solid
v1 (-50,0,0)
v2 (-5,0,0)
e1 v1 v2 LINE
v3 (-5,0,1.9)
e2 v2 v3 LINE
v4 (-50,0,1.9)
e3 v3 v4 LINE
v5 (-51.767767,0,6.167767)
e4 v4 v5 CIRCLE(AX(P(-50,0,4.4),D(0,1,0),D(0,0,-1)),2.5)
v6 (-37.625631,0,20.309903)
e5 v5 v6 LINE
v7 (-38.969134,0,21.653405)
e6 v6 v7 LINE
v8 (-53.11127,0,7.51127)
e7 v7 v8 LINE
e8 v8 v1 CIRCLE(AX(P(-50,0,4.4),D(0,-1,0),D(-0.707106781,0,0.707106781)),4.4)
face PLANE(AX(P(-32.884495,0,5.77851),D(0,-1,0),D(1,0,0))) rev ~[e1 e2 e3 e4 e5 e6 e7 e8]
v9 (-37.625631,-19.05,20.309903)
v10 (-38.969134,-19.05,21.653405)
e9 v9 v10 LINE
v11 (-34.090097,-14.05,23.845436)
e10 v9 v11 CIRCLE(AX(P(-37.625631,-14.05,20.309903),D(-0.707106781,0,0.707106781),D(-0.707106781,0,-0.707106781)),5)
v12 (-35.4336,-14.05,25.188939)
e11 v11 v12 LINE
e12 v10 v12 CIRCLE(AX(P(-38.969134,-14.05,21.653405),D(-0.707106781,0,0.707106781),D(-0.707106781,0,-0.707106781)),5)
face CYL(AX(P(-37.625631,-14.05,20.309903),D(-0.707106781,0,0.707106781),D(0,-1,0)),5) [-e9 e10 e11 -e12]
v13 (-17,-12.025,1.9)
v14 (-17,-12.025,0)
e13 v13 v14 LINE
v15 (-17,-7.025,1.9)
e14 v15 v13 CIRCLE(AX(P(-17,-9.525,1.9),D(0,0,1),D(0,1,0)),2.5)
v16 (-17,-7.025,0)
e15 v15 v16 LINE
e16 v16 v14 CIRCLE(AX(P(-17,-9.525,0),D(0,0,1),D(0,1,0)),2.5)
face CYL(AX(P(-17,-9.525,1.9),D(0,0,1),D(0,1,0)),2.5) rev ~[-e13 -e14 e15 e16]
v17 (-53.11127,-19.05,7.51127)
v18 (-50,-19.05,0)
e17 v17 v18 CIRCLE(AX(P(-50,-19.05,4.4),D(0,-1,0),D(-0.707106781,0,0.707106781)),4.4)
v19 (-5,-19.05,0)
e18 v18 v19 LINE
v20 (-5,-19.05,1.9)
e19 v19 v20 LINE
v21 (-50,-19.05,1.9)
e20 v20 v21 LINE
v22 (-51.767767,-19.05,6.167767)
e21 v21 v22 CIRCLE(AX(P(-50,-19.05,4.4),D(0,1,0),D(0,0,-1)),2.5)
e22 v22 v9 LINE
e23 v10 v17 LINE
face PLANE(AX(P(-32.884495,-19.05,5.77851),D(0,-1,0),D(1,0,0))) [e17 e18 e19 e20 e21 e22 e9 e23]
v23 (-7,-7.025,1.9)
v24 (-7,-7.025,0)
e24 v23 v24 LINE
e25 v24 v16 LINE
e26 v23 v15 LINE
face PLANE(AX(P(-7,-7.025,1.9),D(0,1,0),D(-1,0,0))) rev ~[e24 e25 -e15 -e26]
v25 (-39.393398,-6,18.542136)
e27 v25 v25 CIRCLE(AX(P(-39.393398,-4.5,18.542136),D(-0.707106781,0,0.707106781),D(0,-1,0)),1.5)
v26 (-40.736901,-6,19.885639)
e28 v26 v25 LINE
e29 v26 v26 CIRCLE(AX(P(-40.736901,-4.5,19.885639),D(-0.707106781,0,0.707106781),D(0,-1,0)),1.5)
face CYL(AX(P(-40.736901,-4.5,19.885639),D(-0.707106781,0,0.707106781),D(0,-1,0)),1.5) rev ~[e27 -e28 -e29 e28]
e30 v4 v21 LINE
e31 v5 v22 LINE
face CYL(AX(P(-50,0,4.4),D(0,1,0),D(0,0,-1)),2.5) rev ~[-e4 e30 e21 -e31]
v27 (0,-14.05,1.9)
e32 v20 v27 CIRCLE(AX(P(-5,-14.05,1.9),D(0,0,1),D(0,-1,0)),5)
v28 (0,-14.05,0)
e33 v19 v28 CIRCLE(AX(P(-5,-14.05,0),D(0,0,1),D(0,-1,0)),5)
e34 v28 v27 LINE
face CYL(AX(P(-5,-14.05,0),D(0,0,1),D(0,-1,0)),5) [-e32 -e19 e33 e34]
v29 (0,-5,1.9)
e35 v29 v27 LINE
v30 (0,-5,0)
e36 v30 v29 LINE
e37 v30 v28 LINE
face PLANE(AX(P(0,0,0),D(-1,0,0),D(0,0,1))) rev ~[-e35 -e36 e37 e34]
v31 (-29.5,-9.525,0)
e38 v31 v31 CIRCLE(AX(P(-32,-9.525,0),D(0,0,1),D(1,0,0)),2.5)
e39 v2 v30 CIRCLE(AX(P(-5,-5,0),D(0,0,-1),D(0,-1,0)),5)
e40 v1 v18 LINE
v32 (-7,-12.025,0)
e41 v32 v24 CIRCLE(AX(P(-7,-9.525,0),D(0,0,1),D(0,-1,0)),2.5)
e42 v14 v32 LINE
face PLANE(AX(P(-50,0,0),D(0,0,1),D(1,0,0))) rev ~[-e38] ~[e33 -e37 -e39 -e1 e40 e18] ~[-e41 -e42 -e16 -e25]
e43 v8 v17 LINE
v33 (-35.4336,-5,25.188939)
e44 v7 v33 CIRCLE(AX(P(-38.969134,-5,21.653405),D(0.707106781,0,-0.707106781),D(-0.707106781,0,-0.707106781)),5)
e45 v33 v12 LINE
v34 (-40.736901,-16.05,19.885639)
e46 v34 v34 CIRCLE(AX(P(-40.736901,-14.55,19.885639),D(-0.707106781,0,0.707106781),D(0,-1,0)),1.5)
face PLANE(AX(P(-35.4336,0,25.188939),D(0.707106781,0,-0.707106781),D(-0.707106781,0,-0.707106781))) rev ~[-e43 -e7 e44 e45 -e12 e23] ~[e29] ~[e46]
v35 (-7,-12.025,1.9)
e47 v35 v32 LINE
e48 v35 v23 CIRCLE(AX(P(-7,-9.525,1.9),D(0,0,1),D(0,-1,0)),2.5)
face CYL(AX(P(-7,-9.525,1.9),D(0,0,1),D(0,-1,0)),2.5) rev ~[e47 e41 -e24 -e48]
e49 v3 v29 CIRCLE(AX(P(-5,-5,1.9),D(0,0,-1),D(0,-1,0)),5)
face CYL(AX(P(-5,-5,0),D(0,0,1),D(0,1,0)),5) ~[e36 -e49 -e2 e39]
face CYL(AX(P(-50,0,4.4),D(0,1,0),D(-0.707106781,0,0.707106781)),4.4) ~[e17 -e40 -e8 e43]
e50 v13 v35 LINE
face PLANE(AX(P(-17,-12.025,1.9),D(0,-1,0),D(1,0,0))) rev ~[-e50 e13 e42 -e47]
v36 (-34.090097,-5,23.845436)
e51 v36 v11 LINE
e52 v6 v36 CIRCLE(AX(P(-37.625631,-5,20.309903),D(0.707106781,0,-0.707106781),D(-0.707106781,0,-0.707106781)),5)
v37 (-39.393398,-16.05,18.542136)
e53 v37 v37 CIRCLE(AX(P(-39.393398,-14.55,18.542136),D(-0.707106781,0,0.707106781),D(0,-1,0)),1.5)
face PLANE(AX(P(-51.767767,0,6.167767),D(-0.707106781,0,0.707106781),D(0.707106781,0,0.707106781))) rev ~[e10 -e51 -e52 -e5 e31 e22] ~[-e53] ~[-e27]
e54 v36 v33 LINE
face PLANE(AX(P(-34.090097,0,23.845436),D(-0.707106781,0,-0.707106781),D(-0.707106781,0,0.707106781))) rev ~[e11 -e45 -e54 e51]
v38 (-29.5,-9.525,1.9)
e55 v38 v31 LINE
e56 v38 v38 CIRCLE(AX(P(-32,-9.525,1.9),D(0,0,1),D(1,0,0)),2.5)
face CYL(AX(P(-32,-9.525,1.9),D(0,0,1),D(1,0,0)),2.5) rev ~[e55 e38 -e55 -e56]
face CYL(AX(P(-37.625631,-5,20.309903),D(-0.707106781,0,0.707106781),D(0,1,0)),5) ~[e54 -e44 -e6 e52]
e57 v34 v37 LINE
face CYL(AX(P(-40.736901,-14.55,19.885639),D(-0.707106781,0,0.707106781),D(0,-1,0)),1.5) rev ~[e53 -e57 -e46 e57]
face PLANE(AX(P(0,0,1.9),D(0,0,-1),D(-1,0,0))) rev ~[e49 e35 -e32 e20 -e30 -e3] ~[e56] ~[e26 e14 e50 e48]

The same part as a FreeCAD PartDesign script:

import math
import FreeCAD as App
import Part
import Sketcher
from FreeCAD import Vector
Q = App.Units.Quantity


def edges_at(feature, points):
    """Names of the edges that pass closest to the given points."""
    edges = feature.Shape.Edges
    near = lambda p: min(range(len(edges)), key=lambda i: edges[i].distToShape(Part.Vertex(*p))[0])
    return sorted({f"Edge{near(p) + 1}" for p in points})

doc = App.newDocument("Part")
body = doc.addObject("PartDesign::Body", "Body")

# Sketch on XZ plane
sketch1 = body.newObject("Sketcher::SketchObject", "Sketch")
sketch1.AttachmentSupport = (doc.getObject("XZ_Plane"), [""])
sketch1.MapMode = "FlatFace"
sketch1.addGeometry([
    Part.LineSegment(Vector(-50, 0, 0), Vector(0, 0, 0)),  # 0
    Part.LineSegment(Vector(0, 0, 0), Vector(0, 1.9, 0)),  # 1
    Part.LineSegment(Vector(0, 1.9, 0), Vector(-50, 1.9, 0)),  # 2
    Part.ArcOfCircle(Part.Circle(Vector(-50, 4.4, 0), Vector(0, 0, 1), 2.5), math.radians(135), math.radians(270)),  # 3
    Part.LineSegment(Vector(-51.767767, 6.167767, 0), Vector(-34.090097, 23.845436, 0)),  # 4
    Part.LineSegment(Vector(-34.090097, 23.845436, 0), Vector(-35.4336, 25.188939, 0)),  # 5
    Part.LineSegment(Vector(-35.4336, 25.188939, 0), Vector(-53.11127, 7.51127, 0)),  # 6
    Part.ArcOfCircle(Part.Circle(Vector(-50, 4.4, 0), Vector(0, 0, 1), 4.4), math.radians(135), math.radians(270)),  # 7
], False)
sketch1.addConstraint([
    Sketcher.Constraint("Coincident", 0, 2, 1, 1),
    Sketcher.Constraint("Coincident", 1, 2, 2, 1),
    Sketcher.Constraint("Tangent", 2, 2, 3, 2),
    Sketcher.Constraint("Tangent", 3, 1, 4, 1),
    Sketcher.Constraint("Coincident", 4, 2, 5, 1),
    Sketcher.Constraint("Coincident", 5, 2, 6, 1),
    Sketcher.Constraint("Tangent", 6, 2, 7, 1),
    Sketcher.Constraint("Tangent", 7, 2, 0, 1),
    Sketcher.Constraint("Horizontal", 0),
    Sketcher.Constraint("Vertical", 1),
    Sketcher.Constraint("Horizontal", 2),
    Sketcher.Constraint("Coincident", 0, 2, -1, 1),
    Sketcher.Constraint("Coincident", 7, 3, 3, 3),
    Sketcher.Constraint("Perpendicular", 4, 5),
    Sketcher.Constraint("Perpendicular", 5, 6),
    Sketcher.Constraint("Radius", 3, 2.5),
    Sketcher.Constraint("Radius", 7, 4.4),
    Sketcher.Constraint("DistanceX", 0, 1, 0, 2, 50.0),
    Sketcher.Constraint("Angle", 4, Q("45 deg")),
    Sketcher.Constraint("Distance", 4, 25.0),
])
pad1 = body.newObject("PartDesign::Pad", "Pad")
pad1.Profile = sketch1
pad1.Length = 19.05

# Sketch on XY plane
sketch2 = body.newObject("Sketcher::SketchObject", "Sketch001")
sketch2.AttachmentSupport = (doc.getObject("XY_Plane"), [""])
sketch2.MapMode = "FlatFace"
sketch2.AttachmentOffset = App.Placement(Vector(0, 0, 1.9), App.Rotation())
sketch2.addGeometry([
    Part.Circle(Vector(-32, -9.525, 0), Vector(0, 0, 1), 2.5),  # 0
    Part.LineSegment(Vector(-17, -12.025, 0), Vector(-7, -12.025, 0)),  # 1
    Part.ArcOfCircle(Part.Circle(Vector(-7, -9.525, 0), Vector(0, 0, 1), 2.5), math.radians(-90), math.radians(90)),  # 2
    Part.LineSegment(Vector(-7, -7.025, 0), Vector(-17, -7.025, 0)),  # 3
    Part.ArcOfCircle(Part.Circle(Vector(-17, -9.525, 0), Vector(0, 0, 1), 2.5), math.radians(90), math.radians(270)),  # 4
], False)
sketch2.addConstraint([
    Sketcher.Constraint("Tangent", 1, 2, 2, 1),
    Sketcher.Constraint("Tangent", 2, 2, 3, 1),
    Sketcher.Constraint("Tangent", 3, 2, 4, 1),
    Sketcher.Constraint("Tangent", 4, 2, 1, 1),
    Sketcher.Constraint("Horizontal", 1),
    Sketcher.Constraint("Horizontal", 3),
    Sketcher.Constraint("Equal", 0, 2),
    Sketcher.Constraint("Horizontal", 0, 3, 2, 3),
    Sketcher.Constraint("Diameter", 0, 5.0),
    Sketcher.Constraint("DistanceX", 1, 1, 1, 2, 10.0),
    Sketcher.Constraint("DistanceX", 0, 3, -1, 1, 32.0),
    Sketcher.Constraint("DistanceX", 2, 3, -1, 1, 7.0),
    Sketcher.Constraint("DistanceY", 0, 3, -1, 1, 9.525),
])
pocket1 = body.newObject("PartDesign::Pocket", "Pocket")
pocket1.Profile = sketch2
pocket1.Length = 1.9

# Sketch on an angled plane
sketch3 = body.newObject("Sketcher::SketchObject", "Sketch002")
sketch3.Placement = App.Placement(Vector(-30.31127, 0, 30.31127), App.Rotation(Vector(0, -1, 0), Vector(0.707106781, 0, 0.707106781), Vector(-0.707106781, 0, 0.707106781), "ZXY"))
sketch3.addGeometry([
    Part.Circle(Vector(14.55, -14.744069, 0), Vector(0, 0, 1), 1.5),
    Part.Circle(Vector(4.5, -14.744069, 0), Vector(0, 0, 1), 1.5),
], False)
sketch3.addConstraint([
    Sketcher.Constraint("Equal", 0, 1),
    Sketcher.Constraint("Horizontal", 0, 3, 1, 3),
    Sketcher.Constraint("Diameter", 0, 3.0),
    Sketcher.Constraint("DistanceX", -1, 1, 1, 3, 4.5),
    Sketcher.Constraint("DistanceX", -1, 1, 0, 3, 14.55),
    Sketcher.Constraint("DistanceY", 0, 3, -1, 1, 14.744069),
])
pocket2 = body.newObject("PartDesign::Pocket", "Pocket001")
pocket2.Profile = sketch3
pocket2.Length = 1.9
doc.recompute()

fillet = body.newObject("PartDesign::Fillet", "Fillet")
fillet.Base = (pocket2, edges_at(pocket2, [
    (-34.762, 0, 24.517),
    (-34.762, -19.05, 24.517),
    (0, -19.05, 0.95),
    (0, 0, 0.95),
]))
fillet.Radius = 5

doc.recompute()
